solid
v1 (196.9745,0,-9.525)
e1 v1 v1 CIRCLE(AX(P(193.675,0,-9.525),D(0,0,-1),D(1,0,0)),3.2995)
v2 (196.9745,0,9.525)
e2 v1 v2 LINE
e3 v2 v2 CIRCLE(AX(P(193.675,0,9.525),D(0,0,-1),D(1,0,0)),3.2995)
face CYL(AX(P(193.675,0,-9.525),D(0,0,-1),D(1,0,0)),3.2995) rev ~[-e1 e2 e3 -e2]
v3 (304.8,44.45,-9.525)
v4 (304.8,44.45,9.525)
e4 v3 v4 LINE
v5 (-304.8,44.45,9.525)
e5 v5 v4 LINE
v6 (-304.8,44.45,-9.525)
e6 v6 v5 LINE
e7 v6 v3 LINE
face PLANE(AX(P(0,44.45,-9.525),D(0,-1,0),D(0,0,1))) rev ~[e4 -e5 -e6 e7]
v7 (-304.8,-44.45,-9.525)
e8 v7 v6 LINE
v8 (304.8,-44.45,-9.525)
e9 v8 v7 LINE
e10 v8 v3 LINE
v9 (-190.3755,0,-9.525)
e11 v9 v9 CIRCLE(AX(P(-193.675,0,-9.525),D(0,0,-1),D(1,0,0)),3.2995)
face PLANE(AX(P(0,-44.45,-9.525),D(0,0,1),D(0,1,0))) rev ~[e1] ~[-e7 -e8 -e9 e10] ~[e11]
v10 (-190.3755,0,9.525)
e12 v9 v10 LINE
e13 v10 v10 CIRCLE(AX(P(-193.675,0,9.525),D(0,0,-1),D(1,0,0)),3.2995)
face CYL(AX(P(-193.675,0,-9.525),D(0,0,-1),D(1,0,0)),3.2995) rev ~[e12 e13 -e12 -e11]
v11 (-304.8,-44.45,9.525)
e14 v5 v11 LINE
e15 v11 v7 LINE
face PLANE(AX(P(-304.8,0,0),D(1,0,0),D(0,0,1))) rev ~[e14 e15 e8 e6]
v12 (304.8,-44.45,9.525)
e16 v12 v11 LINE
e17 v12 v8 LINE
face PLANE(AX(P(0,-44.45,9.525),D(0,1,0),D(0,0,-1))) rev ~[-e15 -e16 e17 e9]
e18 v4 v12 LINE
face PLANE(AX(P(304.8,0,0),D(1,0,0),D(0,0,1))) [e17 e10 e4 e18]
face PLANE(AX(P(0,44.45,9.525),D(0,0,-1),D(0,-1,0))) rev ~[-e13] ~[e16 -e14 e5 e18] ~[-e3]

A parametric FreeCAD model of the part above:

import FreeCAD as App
import Part
import Sketcher

V = App.Vector
Q = App.Units.Quantity


def add_polygon(sketch, points):
    """Adds a closed chain of lines whose ends are joined by coincident constraints."""
    first, n = sketch.GeometryCount, len(points)
    for a, b in zip(points, points[1:] + points[:1]):
        sketch.addGeometry(Part.LineSegment(App.Vector(*a, 0), App.Vector(*b, 0)), False)
    for i in range(n):
        sketch.addConstraint(Sketcher.Constraint("Coincident", first + i, 2, first + (i + 1) % n, 1))

doc = App.newDocument("Part")
params = doc.addObject("Spreadsheet::Sheet", "Params")
for row, (alias, value) in enumerate([
    ("sketch1_height", "0.75 in"),
    ("pad1_length", "24 in"),
], start=1):
    params.set(f"A{row}", alias)
    params.set(f"B{row}", "=" + value)
    params.setAlias(f"B{row}", alias)

body = doc.addObject("PartDesign::Body", "Body")

# Sketch on YZ plane
sketch1 = body.newObject("Sketcher::SketchObject", "Sketch")
sketch1.AttachmentSupport = (doc.getObject("YZ_Plane"), [""])
sketch1.MapMode = "FlatFace"
add_polygon(sketch1, [(-44.45, 9.525), (-44.45, -9.525), (44.45, -9.525), (44.45, 9.525)])  # lines 0-3
sketch1.addConstraint(Sketcher.Constraint("Vertical", 0))
sketch1.addConstraint(Sketcher.Constraint("Horizontal", 1))
sketch1.addConstraint(Sketcher.Constraint("Vertical", 2))
sketch1.addConstraint(Sketcher.Constraint("Horizontal", 3))
sketch1.addConstraint(Sketcher.Constraint("Symmetric", 0, 2, 2, 2, -1, 1))
sketch1.addConstraint(Sketcher.Constraint("DistanceX", 0, 2, -1, 1, Q("1.75 in")))
sketch1.addConstraint(Sketcher.Constraint("DistanceY", 0, 2, 0, 1, Q("0.75 in")))
sketch1.setExpression("Constraints[10]", "Params.sketch1_height")
pad1 = body.newObject("PartDesign::Pad", "Pad")
pad1.Profile = sketch1
pad1.setExpression("Length", "Params.pad1_length")
pad1.Midplane = True

# Sketch on XY plane
sketch2 = body.newObject("Sketcher::SketchObject", "Sketch001")
sketch2.AttachmentSupport = (doc.getObject("XY_Plane"), [""])
sketch2.MapMode = "FlatFace"
sketch2.AttachmentOffset = App.Placement(V(0, 0, -0.375 * 25.4), App.Rotation())
sketch2.addGeometry(Part.Circle(V(193.675, 0, 0), V(0, 0, 1), 3.2995), False)
sketch2.addGeometry(Part.Circle(V(-193.675, 0, 0), V(0, 0, 1), 3.2995), False)
sketch2.addConstraint(Sketcher.Constraint("Equal", 0, 1))
sketch2.addConstraint(Sketcher.Constraint("Symmetric", 0, 3, 1, 3, -1, 1))
sketch2.addConstraint(Sketcher.Constraint("PointOnObject", 0, 3, -1))
sketch2.addConstraint(Sketcher.Constraint("Diameter", 0, Q("0.2598 in")))
sketch2.addConstraint(Sketcher.Constraint("DistanceX", 1, 3, 0, 3, Q("15.25 in")))
pocket1 = body.newObject("PartDesign::Pocket", "Pocket")
pocket1.Profile = sketch2
pocket1.Type = "ThroughAll"
pocket1.Reversed = True

doc.recompute()
